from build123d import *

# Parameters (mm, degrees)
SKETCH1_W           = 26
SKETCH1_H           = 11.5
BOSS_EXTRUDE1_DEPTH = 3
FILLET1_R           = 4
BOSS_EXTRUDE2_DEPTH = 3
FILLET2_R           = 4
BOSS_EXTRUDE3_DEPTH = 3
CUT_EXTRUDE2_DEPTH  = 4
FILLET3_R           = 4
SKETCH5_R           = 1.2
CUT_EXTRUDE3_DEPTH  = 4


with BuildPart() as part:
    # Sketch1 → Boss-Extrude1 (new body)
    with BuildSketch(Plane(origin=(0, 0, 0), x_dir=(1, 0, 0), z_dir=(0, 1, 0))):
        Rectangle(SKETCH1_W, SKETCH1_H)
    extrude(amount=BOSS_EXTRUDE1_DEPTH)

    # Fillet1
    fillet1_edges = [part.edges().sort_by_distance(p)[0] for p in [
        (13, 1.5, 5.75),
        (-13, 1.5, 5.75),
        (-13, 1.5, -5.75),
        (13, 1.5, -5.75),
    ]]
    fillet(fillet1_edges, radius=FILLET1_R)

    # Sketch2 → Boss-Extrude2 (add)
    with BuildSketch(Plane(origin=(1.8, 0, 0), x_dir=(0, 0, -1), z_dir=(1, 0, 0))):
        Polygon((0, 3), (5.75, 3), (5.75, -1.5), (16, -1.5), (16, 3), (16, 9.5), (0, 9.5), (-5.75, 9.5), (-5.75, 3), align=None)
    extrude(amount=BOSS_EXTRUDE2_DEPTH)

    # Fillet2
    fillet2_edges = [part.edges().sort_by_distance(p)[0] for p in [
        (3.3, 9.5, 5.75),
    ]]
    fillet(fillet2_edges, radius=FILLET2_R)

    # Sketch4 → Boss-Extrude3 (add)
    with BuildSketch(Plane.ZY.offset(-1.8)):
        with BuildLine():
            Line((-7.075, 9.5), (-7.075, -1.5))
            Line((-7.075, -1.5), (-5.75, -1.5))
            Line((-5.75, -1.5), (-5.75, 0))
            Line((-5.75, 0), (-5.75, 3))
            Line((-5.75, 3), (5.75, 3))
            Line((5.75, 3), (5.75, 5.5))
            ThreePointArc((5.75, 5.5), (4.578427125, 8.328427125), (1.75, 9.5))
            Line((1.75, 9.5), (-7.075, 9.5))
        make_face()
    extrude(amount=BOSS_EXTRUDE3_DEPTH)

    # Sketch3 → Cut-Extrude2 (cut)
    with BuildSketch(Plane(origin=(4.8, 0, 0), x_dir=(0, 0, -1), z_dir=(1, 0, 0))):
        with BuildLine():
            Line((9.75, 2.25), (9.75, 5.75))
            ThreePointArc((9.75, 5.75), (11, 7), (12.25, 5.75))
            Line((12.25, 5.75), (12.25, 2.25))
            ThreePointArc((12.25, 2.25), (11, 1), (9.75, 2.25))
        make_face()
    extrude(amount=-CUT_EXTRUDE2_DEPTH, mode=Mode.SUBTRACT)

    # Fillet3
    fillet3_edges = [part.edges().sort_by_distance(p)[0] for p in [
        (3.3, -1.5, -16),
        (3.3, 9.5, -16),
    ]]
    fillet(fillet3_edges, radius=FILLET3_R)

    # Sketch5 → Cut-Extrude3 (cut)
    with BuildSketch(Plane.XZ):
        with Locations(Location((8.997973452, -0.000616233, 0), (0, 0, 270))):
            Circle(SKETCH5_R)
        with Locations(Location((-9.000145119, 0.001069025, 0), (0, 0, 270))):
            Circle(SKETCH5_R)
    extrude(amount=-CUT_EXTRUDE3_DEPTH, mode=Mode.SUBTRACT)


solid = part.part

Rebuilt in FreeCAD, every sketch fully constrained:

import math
import FreeCAD as App
import Part
import Sketcher

V = App.Vector


def edges_at(feature, points):
    """Names of the edges that pass closest to the given points."""
    edges = feature.Shape.Edges
    near = lambda p: min(range(len(edges)), key=lambda i: edges[i].distToShape(Part.Vertex(*p))[0])
    return sorted({f"Edge{near(p) + 1}" for p in points})


def add_polygon(sketch, points):
    """Adds a closed chain of lines whose ends are joined by coincident constraints."""
    first, n = sketch.GeometryCount, len(points)
    for a, b in zip(points, points[1:] + points[:1]):
        sketch.addGeometry(Part.LineSegment(App.Vector(*a, 0), App.Vector(*b, 0)), False)
    for i in range(n):
        sketch.addConstraint(Sketcher.Constraint("Coincident", first + i, 2, first + (i + 1) % n, 1))

doc = App.newDocument("Part")
params = doc.addObject("Spreadsheet::Sheet", "Params")
for row, (alias, value) in enumerate([
    ("sketch1_width", "26 mm"),
    ("sketch1_height", "11.5 mm"),
    ("pad1_length", "3 mm"),
    ("fillet_radius", "4 mm"),
    ("sketch2_width", "11 mm"),
    ("sketch2_width2", "4.5 mm"),
    ("sketch2_height", "11.5 mm"),
    ("sketch2_height2", "10.25 mm"),
    ("pad2_length", "3 mm"),
    ("fillet2_radius", "4 mm"),
    ("sketch3_radius", "4 mm"),
    ("sketch3_width", "11 mm"),
    ("sketch3_width2", "4.5 mm"),
    ("sketch3_height", "11.5 mm"),
    ("pad3_length", "3 mm"),
    ("sketch4_radius", "1.25 mm"),
    ("sketch4_width", "3.5 mm"),
    ("pocket1_length", "4 mm"),
    ("fillet3_radius", "4 mm"),
    ("sketch5_diameter", "2.4 mm"),
    ("pocket2_length", "4 mm"),
], start=1):
    params.set(f"A{row}", alias)
    params.set(f"B{row}", "=" + value)
    params.setAlias(f"B{row}", alias)

body = doc.addObject("PartDesign::Body", "Body")

# Sketch on XZ plane
sketch1 = body.newObject("Sketcher::SketchObject", "Sketch")
sketch1.AttachmentSupport = (doc.getObject("XZ_Plane"), [""])
sketch1.MapMode = "FlatFace"
add_polygon(sketch1, [(-13, -6), (-13, 6), (13, 6), (13, -6)])  # lines 0-3
sketch1.addConstraint([
    Sketcher.Constraint("Vertical", 0),
    Sketcher.Constraint("Horizontal", 1),
    Sketcher.Constraint("Vertical", 2),
    Sketcher.Constraint("Horizontal", 3),
    Sketcher.Constraint("Symmetric", 0, 2, 2, 2, -1, 1),
    Sketcher.Constraint("DistanceX", 1, 1, 1, 2, 26.0),
    Sketcher.Constraint("DistanceY", 0, 1, 0, 2, 11.5),
])
sketch1.setExpression("Constraints[9]", "Params.sketch1_width")
sketch1.setExpression("Constraints[10]", "Params.sketch1_height")
pad1 = body.newObject("PartDesign::Pad", "Pad")
pad1.Profile = sketch1
pad1.setExpression("Length", "Params.pad1_length")
pad1.Reversed = True
doc.recompute()

fillet = body.newObject("PartDesign::Fillet", "Fillet")
fillet.Base = (pad1, edges_at(pad1, [
    (13, 1.5, 5.75),
    (-13, 1.5, 5.75),
    (-13, 1.5, -5.75),
    (13, 1.5, -5.75),
]))
fillet.setExpression("Radius", "Params.fillet_radius")

# Sketch on YZ plane
sketch2 = body.newObject("Sketcher::SketchObject", "Sketch001")
sketch2.AttachmentSupport = (doc.getObject("YZ_Plane"), [""])
sketch2.MapMode = "FlatFace"
sketch2.AttachmentOffset = App.Placement(V(0, 0, 1.8), App.Rotation())
add_polygon(sketch2, [(3, -5.8), (-1.5, -5.8), (-1.5, -16), (9.5, -16), (9.5, 5.8), (3, 5.8)])  # lines 0-5
sketch2.addConstraint([
    Sketcher.Constraint("Horizontal", 0),
    Sketcher.Constraint("Vertical", 1),
    Sketcher.Constraint("Horizontal", 2),
    Sketcher.Constraint("Vertical", 3),
    Sketcher.Constraint("Horizontal", 4),
    Sketcher.Constraint("Vertical", 5),
    Sketcher.Constraint("DistanceX", 2, 1, 2, 2, 11.0),
    Sketcher.Constraint("DistanceX", 0, 2, 0, 1, 4.5),
    Sketcher.Constraint("DistanceY", 5, 2, 5, 1, 11.5),
    Sketcher.Constraint("DistanceY", 1, 2, -1, 1, 16.0),
    Sketcher.Constraint("DistanceX", -1, 1, 4, 2, 3.0),
    Sketcher.Constraint("DistanceY", 1, 2, 1, 1, 10.25),
])
sketch2.setExpression("Constraints[12]", "Params.sketch2_width")
sketch2.setExpression("Constraints[13]", "Params.sketch2_width2")
sketch2.setExpression("Constraints[14]", "Params.sketch2_height")
sketch2.setExpression("Constraints[17]", "Params.sketch2_height2")
pad2 = body.newObject("PartDesign::Pad", "Pad001")
pad2.Profile = sketch2
pad2.setExpression("Length", "Params.pad2_length")
doc.recompute()

fillet2 = body.newObject("PartDesign::Fillet", "Fillet001")
fillet2.Base = (pad2, edges_at(pad2, [(3.3, 9.5, 5.75)]))
fillet2.setExpression("Radius", "Params.fillet2_radius")

# Sketch on YZ plane
sketch3 = body.newObject("Sketcher::SketchObject", "Sketch002")
sketch3.AttachmentSupport = (doc.getObject("YZ_Plane"), [""])
sketch3.MapMode = "FlatFace"
sketch3.AttachmentOffset = App.Placement(V(0, 0, 1.8), App.Rotation())
sketch3.addGeometry([
    Part.LineSegment(V(9.5, -7.1, 0), V(-1.5, -7.1, 0)),  # 0
    Part.LineSegment(V(-1.5, -7.1, 0), V(-1.5, -5.8, 0)),  # 1
    Part.LineSegment(V(-1.5, -5.8, 0), V(3, -5.8, 0)),  # 2
    Part.LineSegment(V(3, -5.8, 0), V(3, 5.8, 0)),  # 3
    Part.LineSegment(V(3, 5.8, 0), V(5.5, 5.8, 0)),  # 4
    Part.ArcOfCircle(Part.Circle(V(5.5, 1.8, 0), V(0, 0, 1), 4), math.radians(0), math.radians(90)),  # 5
    Part.LineSegment(V(9.5, 1.8, 0), V(9.5, -7.1, 0)),  # 6
], False)
sketch3.addConstraint([
    Sketcher.Constraint("Coincident", 0, 2, 1, 1),
    Sketcher.Constraint("Coincident", 1, 2, 2, 1),
    Sketcher.Constraint("Coincident", 2, 2, 3, 1),
    Sketcher.Constraint("Coincident", 3, 2, 4, 1),
    Sketcher.Constraint("Tangent", 4, 2, 5, 2),
    Sketcher.Constraint("Tangent", 5, 1, 6, 1),
    Sketcher.Constraint("Coincident", 6, 2, 0, 1),
    Sketcher.Constraint("Horizontal", 0),
    Sketcher.Constraint("Vertical", 1),
    Sketcher.Constraint("Horizontal", 2),
    Sketcher.Constraint("Vertical", 3),
    Sketcher.Constraint("Horizontal", 4),
    Sketcher.Constraint("Vertical", 6),
    Sketcher.Constraint("Radius", 5, 4.0),
    Sketcher.Constraint("DistanceX", 0, 2, 0, 1, 11.0),
    Sketcher.Constraint("DistanceX", 2, 1, 2, 2, 4.5),
    Sketcher.Constraint("DistanceY", 3, 1, 3, 2, 11.5),
    Sketcher.Constraint("DistanceX", -1, 1, 2, 2, 3.0),
    Sketcher.Constraint("DistanceY", 1, 1, 1, 2, 1.325),
    Sketcher.Constraint("DistanceY", -1, 1, 5, 3, 1.75),
])
sketch3.setExpression("Constraints[13]", "Params.sketch3_radius")
sketch3.setExpression("Constraints[14]", "Params.sketch3_width")
sketch3.setExpression("Constraints[15]", "Params.sketch3_width2")
sketch3.setExpression("Constraints[16]", "Params.sketch3_height")
pad3 = body.newObject("PartDesign::Pad", "Pad002")
pad3.Profile = sketch3
pad3.setExpression("Length", "Params.pad3_length")
pad3.Reversed = True

# Sketch on YZ plane
sketch4 = body.newObject("Sketcher::SketchObject", "Sketch003")
sketch4.AttachmentSupport = (doc.getObject("YZ_Plane"), [""])
sketch4.MapMode = "FlatFace"
sketch4.AttachmentOffset = App.Placement(V(0, 0, 4.8), App.Rotation())
sketch4.addGeometry([
    Part.LineSegment(V(5.8, -9.8, 0), V(2.2, -9.8, 0)),
    Part.ArcOfCircle(Part.Circle(V(2.2, -11, 0), V(0, 0, 1), 1.2), math.radians(90), math.radians(270)),
    Part.LineSegment(V(2.2, -12.2, 0), V(5.8, -12.2, 0)),
    Part.ArcOfCircle(Part.Circle(V(5.8, -11, 0), V(0, 0, 1), 1.2), math.radians(-90), math.radians(90)),
], False)
sketch4.addConstraint([
    Sketcher.Constraint("Tangent", 0, 2, 1, 1),
    Sketcher.Constraint("Tangent", 1, 2, 2, 1),
    Sketcher.Constraint("Tangent", 2, 2, 3, 1),
    Sketcher.Constraint("Tangent", 3, 2, 0, 1),
    Sketcher.Constraint("Horizontal", 0),
    Sketcher.Constraint("Horizontal", 2),
    Sketcher.Constraint("Radius", 1, 1.25),
    Sketcher.Constraint("DistanceX", 0, 2, 0, 1, 3.5),
    Sketcher.Constraint("DistanceY", 1, 3, -1, 1, 11.0),
    Sketcher.Constraint("DistanceX", -1, 1, 1, 3, 2.25),
])
sketch4.setExpression("Constraints[6]", "Params.sketch4_radius")
sketch4.setExpression("Constraints[7]", "Params.sketch4_width")
pocket1 = body.newObject("PartDesign::Pocket", "Pocket")
pocket1.Profile = sketch4
pocket1.setExpression("Length", "Params.pocket1_length")
doc.recompute()

fillet3 = body.newObject("PartDesign::Fillet", "Fillet002")
fillet3.Base = (pocket1, edges_at(pocket1, [(3.3, -1.5, -16), (3.3, 9.5, -16)]))
fillet3.setExpression("Radius", "Params.fillet3_radius")

# Sketch on XZ plane
sketch5 = body.newObject("Sketcher::SketchObject", "Sketch004")
sketch5.AttachmentSupport = (doc.getObject("XZ_Plane"), [""])
sketch5.MapMode = "FlatFace"
sketch5.addGeometry([
    Part.Circle(V(9, 0, 0), V(0, 0, 1), 1.2),
    Part.Circle(V(-9, 0, 0), V(0, 0, 1), 1.2),
], False)
sketch5.addConstraint([
    Sketcher.Constraint("Equal", 0, 1),
    Sketcher.Constraint("Diameter", 0, 2.4),
    Sketcher.Constraint("DistanceY", -1, 1, 1, 3, 0.001069),
    Sketcher.Constraint("DistanceX", 1, 3, 0, 3, 17.998119),
    Sketcher.Constraint("DistanceX", -1, 1, 0, 3, 8.997973),
    Sketcher.Constraint("DistanceY", 0, 3, -1, 1, 0.000616),
])
sketch5.setExpression("Constraints[1]", "Params.sketch5_diameter")
pocket2 = body.newObject("PartDesign::Pocket", "Pocket001")
pocket2.Profile = sketch5
pocket2.setExpression("Length", "Params.pocket2_length")

doc.recompute()
